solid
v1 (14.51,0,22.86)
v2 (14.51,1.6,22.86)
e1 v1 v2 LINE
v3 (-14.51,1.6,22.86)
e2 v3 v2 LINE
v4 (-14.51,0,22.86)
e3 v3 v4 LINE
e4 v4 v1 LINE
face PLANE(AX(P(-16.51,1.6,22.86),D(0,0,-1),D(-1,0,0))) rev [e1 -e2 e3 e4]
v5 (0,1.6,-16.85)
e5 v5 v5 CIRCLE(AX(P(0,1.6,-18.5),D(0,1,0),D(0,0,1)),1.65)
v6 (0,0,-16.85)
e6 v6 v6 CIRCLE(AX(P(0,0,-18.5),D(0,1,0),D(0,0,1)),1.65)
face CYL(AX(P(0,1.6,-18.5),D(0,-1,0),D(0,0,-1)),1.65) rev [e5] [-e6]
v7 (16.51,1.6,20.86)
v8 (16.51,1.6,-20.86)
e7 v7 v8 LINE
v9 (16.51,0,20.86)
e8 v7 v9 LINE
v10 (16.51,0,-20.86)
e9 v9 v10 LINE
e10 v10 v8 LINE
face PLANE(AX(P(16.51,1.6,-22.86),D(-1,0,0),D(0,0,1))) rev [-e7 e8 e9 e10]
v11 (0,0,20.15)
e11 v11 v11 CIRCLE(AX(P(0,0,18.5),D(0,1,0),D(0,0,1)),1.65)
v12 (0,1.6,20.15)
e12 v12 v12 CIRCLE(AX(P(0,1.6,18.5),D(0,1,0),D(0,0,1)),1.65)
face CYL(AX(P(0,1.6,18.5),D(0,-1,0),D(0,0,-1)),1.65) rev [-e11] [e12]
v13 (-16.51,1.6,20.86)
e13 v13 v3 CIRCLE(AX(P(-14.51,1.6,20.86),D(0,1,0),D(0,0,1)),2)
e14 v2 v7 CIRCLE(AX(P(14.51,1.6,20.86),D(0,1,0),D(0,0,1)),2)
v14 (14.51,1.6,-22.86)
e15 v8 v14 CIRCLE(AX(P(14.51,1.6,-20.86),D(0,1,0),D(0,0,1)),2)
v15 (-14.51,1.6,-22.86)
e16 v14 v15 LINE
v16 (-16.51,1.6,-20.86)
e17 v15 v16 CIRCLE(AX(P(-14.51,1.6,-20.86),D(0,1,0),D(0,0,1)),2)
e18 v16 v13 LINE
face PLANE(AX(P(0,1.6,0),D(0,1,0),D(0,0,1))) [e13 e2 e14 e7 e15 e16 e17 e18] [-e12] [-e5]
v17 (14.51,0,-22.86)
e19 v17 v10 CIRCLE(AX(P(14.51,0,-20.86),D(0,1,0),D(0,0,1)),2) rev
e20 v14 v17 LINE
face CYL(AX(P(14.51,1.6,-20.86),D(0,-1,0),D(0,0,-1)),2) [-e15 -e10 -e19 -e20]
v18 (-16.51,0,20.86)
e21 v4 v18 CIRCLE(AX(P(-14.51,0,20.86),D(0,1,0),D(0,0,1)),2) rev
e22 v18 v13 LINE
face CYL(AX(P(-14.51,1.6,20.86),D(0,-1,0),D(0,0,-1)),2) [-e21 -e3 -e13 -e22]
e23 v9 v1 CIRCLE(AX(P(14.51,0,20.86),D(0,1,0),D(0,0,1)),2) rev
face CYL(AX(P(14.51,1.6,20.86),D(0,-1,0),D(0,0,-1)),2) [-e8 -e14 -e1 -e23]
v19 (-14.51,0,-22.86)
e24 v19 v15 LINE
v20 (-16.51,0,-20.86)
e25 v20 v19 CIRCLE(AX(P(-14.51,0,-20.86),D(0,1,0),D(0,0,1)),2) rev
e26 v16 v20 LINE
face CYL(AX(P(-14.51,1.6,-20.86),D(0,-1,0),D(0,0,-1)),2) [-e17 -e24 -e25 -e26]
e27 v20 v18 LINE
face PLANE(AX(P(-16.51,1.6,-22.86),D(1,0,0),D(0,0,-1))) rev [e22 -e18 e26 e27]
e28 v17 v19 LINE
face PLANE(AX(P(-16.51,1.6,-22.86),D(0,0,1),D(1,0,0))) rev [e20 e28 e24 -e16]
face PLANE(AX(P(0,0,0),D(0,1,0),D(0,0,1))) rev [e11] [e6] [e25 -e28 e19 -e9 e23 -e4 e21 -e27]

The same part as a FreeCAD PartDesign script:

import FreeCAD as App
import Part
import Sketcher
from FreeCAD import Vector
Q = App.Units.Quantity


def edges_at(feature, points):
    """Names of the edges that pass closest to the given points."""
    edges = feature.Shape.Edges
    near = lambda p: min(range(len(edges)), key=lambda i: edges[i].distToShape(Part.Vertex(*p))[0])
    return sorted({f"Edge{near(p) + 1}" for p in points})

doc = App.newDocument("Part")
body = doc.addObject("PartDesign::Body", "Body")

sketch1 = body.newObject("Sketcher::SketchObject", "Sketch")
sketch1.AttachmentSupport = (doc.getObject("XZ_Plane"), [""])
sketch1.MapMode = "FlatFace"
sketch1.addGeometry(Part.LineSegment(Vector(-16.5, -22.9, 0), Vector(-16.5, 22.9, 0)), False)
sketch1.addGeometry(Part.LineSegment(Vector(-16.5, 22.9, 0), Vector(16.5, 22.9, 0)), False)
sketch1.addGeometry(Part.LineSegment(Vector(16.5, 22.9, 0), Vector(16.5, -22.9, 0)), False)
sketch1.addGeometry(Part.LineSegment(Vector(16.5, -22.9, 0), Vector(-16.5, -22.9, 0)), False)
sketch1.addGeometry(Part.Circle(Vector(0, 18.5, 0), Vector(0, 0, 1), 1.6), False)
sketch1.addGeometry(Part.Circle(Vector(0, -18.5, 0), Vector(0, 0, 1), 1.6), False)
sketch1.addConstraint(Sketcher.Constraint("Coincident", 0, 2, 1, 1))
sketch1.addConstraint(Sketcher.Constraint("Coincident", 1, 2, 2, 1))
sketch1.addConstraint(Sketcher.Constraint("Coincident", 2, 2, 3, 1))
sketch1.addConstraint(Sketcher.Constraint("Coincident", 3, 2, 0, 1))
sketch1.addConstraint(Sketcher.Constraint("Vertical", 0))
sketch1.addConstraint(Sketcher.Constraint("Horizontal", 1))
sketch1.addConstraint(Sketcher.Constraint("Vertical", 2))
sketch1.addConstraint(Sketcher.Constraint("Horizontal", 3))
sketch1.addConstraint(Sketcher.Constraint("Equal", 4, 5))
sketch1.addConstraint(Sketcher.Constraint("Symmetric", 4, 3, 5, 3, -1, 1))
sketch1.addConstraint(Sketcher.Constraint("Symmetric", 0, 2, 2, 2, -1, 1))
sketch1.addConstraint(Sketcher.Constraint("PointOnObject", 4, 3, -2))
sketch1.addConstraint(Sketcher.Constraint("Diameter", 4, Q("3.3 mm")))
sketch1.addConstraint(Sketcher.Constraint("DistanceY", 5, 3, 4, 3, Q("37 mm")))
sketch1.addConstraint(Sketcher.Constraint("DistanceX", 1, 1, 1, 2, Q("33.02 mm")))
sketch1.addConstraint(Sketcher.Constraint("DistanceY", 0, 1, 0, 2, Q("45.72 mm")))
pad1 = body.newObject("PartDesign::Pad", "Pad")
pad1.Profile = sketch1
pad1.Length = 1.6
pad1.Reversed = True
doc.recompute()

fillet = body.newObject("PartDesign::Fillet", "Fillet")
fillet.Base = (pad1, edges_at(pad1, [
    (16.51, 0.8, 22.86),
    (-16.51, 0.8, 22.86),
    (-16.51, 0.8, -22.86),
    (16.51, 0.8, -22.86),
]))
fillet.Radius = 2

doc.recompute()
